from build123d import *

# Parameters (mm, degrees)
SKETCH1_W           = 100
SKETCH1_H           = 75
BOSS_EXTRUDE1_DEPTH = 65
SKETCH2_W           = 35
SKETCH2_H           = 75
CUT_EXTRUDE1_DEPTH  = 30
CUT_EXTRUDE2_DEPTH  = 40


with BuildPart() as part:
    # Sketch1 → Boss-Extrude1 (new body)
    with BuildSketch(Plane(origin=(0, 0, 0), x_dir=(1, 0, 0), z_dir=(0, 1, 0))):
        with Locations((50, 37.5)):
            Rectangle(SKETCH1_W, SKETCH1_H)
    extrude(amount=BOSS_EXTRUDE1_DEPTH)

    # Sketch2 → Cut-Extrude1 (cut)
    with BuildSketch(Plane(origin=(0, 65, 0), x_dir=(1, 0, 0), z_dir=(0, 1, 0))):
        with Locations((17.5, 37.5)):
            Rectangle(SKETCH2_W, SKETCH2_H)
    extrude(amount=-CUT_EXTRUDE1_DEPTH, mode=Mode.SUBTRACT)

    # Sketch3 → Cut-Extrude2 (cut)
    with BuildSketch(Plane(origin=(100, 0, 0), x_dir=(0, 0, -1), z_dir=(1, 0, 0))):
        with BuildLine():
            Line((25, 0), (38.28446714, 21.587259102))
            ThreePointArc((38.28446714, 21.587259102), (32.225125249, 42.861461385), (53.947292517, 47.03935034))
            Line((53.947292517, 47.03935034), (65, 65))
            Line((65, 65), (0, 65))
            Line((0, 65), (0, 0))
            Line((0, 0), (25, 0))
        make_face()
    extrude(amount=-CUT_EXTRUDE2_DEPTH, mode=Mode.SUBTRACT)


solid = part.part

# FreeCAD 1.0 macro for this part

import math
import FreeCAD as App
import Part
import Sketcher


def add_polygon(sketch, points):
    """Adds a closed chain of lines whose ends are joined by coincident constraints."""
    first, n = sketch.GeometryCount, len(points)
    for a, b in zip(points, points[1:] + points[:1]):
        sketch.addGeometry(Part.LineSegment(App.Vector(*a, 0), App.Vector(*b, 0)), False)
    for i in range(n):
        sketch.addConstraint(Sketcher.Constraint("Coincident", first + i, 2, first + (i + 1) % n, 1))

doc = App.newDocument("Part")
body = doc.addObject("PartDesign::Body", "Body")

sketch1 = doc.addObject("Sketcher::SketchObject", "Sketch")
body.addObject(sketch1)
sketch1.AttachmentSupport = (doc.XZ_Plane, [""])
sketch1.MapMode = "FlatFace"
add_polygon(sketch1, [(0, -75), (0, 0), (100, 0), (100, -75)])
sketch1.addConstraint([
    Sketcher.Constraint("Vertical", 0),
    Sketcher.Constraint("Horizontal", 1),
    Sketcher.Constraint("Vertical", 2),
    Sketcher.Constraint("Horizontal", 3),
    Sketcher.Constraint("Coincident", 0, 2, -1, 1),
    Sketcher.Constraint("DistanceX", 1, 1, 1, 2, 100.0),
    Sketcher.Constraint("DistanceY", 0, 1, 0, 2, 75.0),
])
pad1 = doc.addObject("PartDesign::Pad", "Pad")
body.addObject(pad1)
pad1.Profile = sketch1
pad1.Length = 65
pad1.Reversed = True

sketch2 = doc.addObject("Sketcher::SketchObject", "Sketch001")
body.addObject(sketch2)
sketch2.AttachmentSupport = (doc.XZ_Plane, [""])
sketch2.MapMode = "FlatFace"
sketch2.AttachmentOffset = App.Placement(App.Vector(0, 0, -65), App.Rotation())
add_polygon(sketch2, [(0, -75), (0, 0), (35, 0), (35, -75)])
sketch2.addConstraint([
    Sketcher.Constraint("Vertical", 0),
    Sketcher.Constraint("Horizontal", 1),
    Sketcher.Constraint("Vertical", 2),
    Sketcher.Constraint("Horizontal", 3),
    Sketcher.Constraint("Coincident", 0, 2, -1, 1),
    Sketcher.Constraint("DistanceX", 1, 1, 1, 2, 35.0),
    Sketcher.Constraint("DistanceY", 0, 1, 0, 2, 75.0),
])
pocket1 = doc.addObject("PartDesign::Pocket", "Pocket")
body.addObject(pocket1)
pocket1.Profile = sketch2
pocket1.Length = 30
pocket1.Reversed = True

sketch3 = doc.addObject("Sketcher::SketchObject", "Sketch002")
body.addObject(sketch3)
sketch3.AttachmentSupport = (doc.YZ_Plane, [""])
sketch3.MapMode = "FlatFace"
sketch3.AttachmentOffset = App.Placement(App.Vector(0, 0, 100), App.Rotation())
sketch3.addGeometry([
    Part.LineSegment(App.Vector(0, -25, 0), App.Vector(22, -38, 0)),
    Part.ArcOfCircle(Part.Circle(App.Vector(35, -45, 0), App.Vector(0, 0, 1), 15), math.radians(-37), math.radians(153)),
    Part.LineSegment(App.Vector(47, -54, 0), App.Vector(65, -65, 0)),
    Part.LineSegment(App.Vector(65, -65, 0), App.Vector(65, 0, 0)),
    Part.LineSegment(App.Vector(65, 0, 0), App.Vector(0, 0, 0)),
    Part.LineSegment(App.Vector(0, 0, 0), App.Vector(0, -25, 0)),
], False)
sketch3.addConstraint([
    Sketcher.Constraint("Coincident", 0, 2, 1, 2),
    Sketcher.Constraint("Coincident", 1, 1, 2, 1),
    Sketcher.Constraint("Coincident", 2, 2, 3, 1),
    Sketcher.Constraint("Coincident", 3, 2, 4, 1),
    Sketcher.Constraint("Coincident", 4, 2, 5, 1),
    Sketcher.Constraint("Coincident", 5, 2, 0, 1),
    Sketcher.Constraint("Vertical", 3),
    Sketcher.Constraint("Horizontal", 4),
    Sketcher.Constraint("Vertical", 5),
    Sketcher.Constraint("Coincident", 4, 2, -1, 1),
    Sketcher.Constraint("Parallel", 0, 2),
    Sketcher.Constraint("Equal", 4, 3),
    Sketcher.Constraint("Radius", 1, 15.0),
    Sketcher.Constraint("DistanceX", 4, 2, 4, 1, 65.0),
    Sketcher.Constraint("DistanceY", 5, 2, 5, 1, 25.0),
    Sketcher.Constraint("DistanceX", -1, 1, 1, 3, 35.0),
    Sketcher.Constraint("DistanceY", 1, 3, -1, 1, 45.0),
    Sketcher.Constraint("DistanceX", -1, 1, 0, 2, 21.587259),
])
pocket2 = doc.addObject("PartDesign::Pocket", "Pocket001")
body.addObject(pocket2)
pocket2.Profile = sketch3
pocket2.Length = 40

doc.recompute()
